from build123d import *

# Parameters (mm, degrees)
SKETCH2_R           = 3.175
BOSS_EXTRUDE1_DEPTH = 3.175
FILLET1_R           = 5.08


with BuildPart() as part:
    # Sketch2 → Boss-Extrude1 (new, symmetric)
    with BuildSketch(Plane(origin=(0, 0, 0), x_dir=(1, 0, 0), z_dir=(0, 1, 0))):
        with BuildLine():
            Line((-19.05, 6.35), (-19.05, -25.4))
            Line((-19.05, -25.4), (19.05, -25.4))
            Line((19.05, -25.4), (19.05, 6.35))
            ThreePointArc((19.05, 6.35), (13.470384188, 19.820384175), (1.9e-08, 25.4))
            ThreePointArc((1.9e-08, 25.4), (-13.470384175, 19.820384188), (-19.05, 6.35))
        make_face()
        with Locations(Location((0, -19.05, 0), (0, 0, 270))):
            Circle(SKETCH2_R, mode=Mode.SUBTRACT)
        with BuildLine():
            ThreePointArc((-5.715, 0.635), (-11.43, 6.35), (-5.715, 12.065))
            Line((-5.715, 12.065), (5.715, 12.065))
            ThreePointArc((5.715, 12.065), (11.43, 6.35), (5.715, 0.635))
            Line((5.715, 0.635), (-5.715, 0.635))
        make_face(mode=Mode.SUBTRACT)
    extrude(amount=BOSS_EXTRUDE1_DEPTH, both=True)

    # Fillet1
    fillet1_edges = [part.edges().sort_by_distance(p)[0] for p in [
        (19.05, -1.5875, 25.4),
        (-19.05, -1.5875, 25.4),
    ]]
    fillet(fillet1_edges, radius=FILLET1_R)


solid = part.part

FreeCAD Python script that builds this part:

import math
import FreeCAD as App
import Part
import Sketcher
from FreeCAD import Vector
Q = App.Units.Quantity


def edges_at(feature, points):
    """Names of the edges that pass closest to the given points."""
    edges = feature.Shape.Edges
    near = lambda p: min(range(len(edges)), key=lambda i: edges[i].distToShape(Part.Vertex(*p))[0])
    return sorted({f"Edge{near(p) + 1}" for p in points})

doc = App.newDocument("Part")
body = doc.addObject("PartDesign::Body", "Body")

# Sketch on XZ plane
sketch1 = body.newObject("Sketcher::SketchObject", "Sketch")
sketch1.AttachmentSupport = (doc.getObject("XZ_Plane"), [""])
sketch1.MapMode = "FlatFace"
sketch1.addGeometry([
    Part.LineSegment(Vector(-19.1, -6.3, 0), Vector(-19.1, 25.4, 0)),  # 0
    Part.LineSegment(Vector(-19.1, 25.4, 0), Vector(19.1, 25.4, 0)),  # 1
    Part.LineSegment(Vector(19.1, 25.4, 0), Vector(19.1, -6.3, 0)),  # 2
    Part.ArcOfCircle(Part.Circle(Vector(0, -6.3, 0), Vector(0, 0, 1), 19.1), math.radians(-90), math.radians(0)),  # 3
    Part.ArcOfCircle(Part.Circle(Vector(0, -6.3, 0), Vector(0, 0, 1), 19.1), math.radians(180), math.radians(270)),  # 4
    Part.Circle(Vector(0, 19.1, 0), Vector(0, 0, 1), 3.2),  # 5
    Part.LineSegment(Vector(5.7, -0.6, 0), Vector(-5.7, -0.6, 0)),  # 6
    Part.ArcOfCircle(Part.Circle(Vector(-5.7, -6.3, 0), Vector(0, 0, 1), 5.7), math.radians(90), math.radians(270)),  # 7
    Part.LineSegment(Vector(-5.7, -12.1, 0), Vector(5.7, -12.1, 0)),  # 8
    Part.ArcOfCircle(Part.Circle(Vector(5.7, -6.3, 0), Vector(0, 0, 1), 5.7), math.radians(-90), math.radians(90)),  # 9
], False)
sketch1.addConstraint([
    Sketcher.Constraint("Coincident", 0, 2, 1, 1),
    Sketcher.Constraint("Coincident", 1, 2, 2, 1),
    Sketcher.Constraint("Tangent", 2, 2, 3, 2),
    Sketcher.Constraint("Tangent", 3, 1, 4, 2),
    Sketcher.Constraint("Tangent", 4, 1, 0, 1),
    Sketcher.Constraint("Tangent", 6, 2, 7, 1),
    Sketcher.Constraint("Tangent", 7, 2, 8, 1),
    Sketcher.Constraint("Tangent", 8, 2, 9, 1),
    Sketcher.Constraint("Tangent", 9, 2, 6, 1),
    Sketcher.Constraint("Vertical", 0),
    Sketcher.Constraint("Horizontal", 1),
    Sketcher.Constraint("Vertical", 2),
    Sketcher.Constraint("Horizontal", 6),
    Sketcher.Constraint("Horizontal", 8),
    Sketcher.Constraint("Equal", 3, 4),
    Sketcher.Constraint("PointOnObject", 3, 3, -2),
    Sketcher.Constraint("PointOnObject", 5, 3, -2),
    Sketcher.Constraint("PointOnObject", 3, 1, -2),
    Sketcher.Constraint("Horizontal", 4, 3, 7, 3),
    Sketcher.Constraint("Diameter", 5, Q("0.25 in")),
    Sketcher.Constraint("Radius", 3, Q("0.75 in")),
    Sketcher.Constraint("DistanceY", -1, 1, 0, 2, Q("1 in")),
    Sketcher.Constraint("DistanceY", 3, 1, -1, 1, Q("1 in")),
    Sketcher.Constraint("Radius", 7, Q("0.225 in")),
    Sketcher.Constraint("DistanceY", 3, 3, 5, 3, Q("1 in")),
    Sketcher.Constraint("DistanceX", 6, 2, 6, 1, Q("0.45 in")),
    Sketcher.Constraint("DistanceX", 7, 3, -1, 1, Q("0.225 in")),
])
pad1 = body.newObject("PartDesign::Pad", "Pad")
pad1.Profile = sketch1
pad1.Length = Q("0.25 in")
pad1.Midplane = True
doc.recompute()

fillet = body.newObject("PartDesign::Fillet", "Fillet")
fillet.Base = (pad1, edges_at(pad1, [(19.05, 0, 25.4), (-19.05, 0, 25.4)]))
fillet.Radius = Q("0.2 in")

doc.recompute()
